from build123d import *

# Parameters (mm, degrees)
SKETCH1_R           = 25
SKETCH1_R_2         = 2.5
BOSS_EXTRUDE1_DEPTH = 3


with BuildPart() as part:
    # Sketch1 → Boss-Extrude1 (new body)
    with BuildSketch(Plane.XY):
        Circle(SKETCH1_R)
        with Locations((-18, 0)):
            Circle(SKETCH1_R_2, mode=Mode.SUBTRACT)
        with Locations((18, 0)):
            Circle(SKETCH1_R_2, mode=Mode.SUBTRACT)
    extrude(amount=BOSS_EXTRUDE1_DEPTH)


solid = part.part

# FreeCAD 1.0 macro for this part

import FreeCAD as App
import Part
import Sketcher

V = App.Vector

doc = App.newDocument("Part")
body = doc.addObject("PartDesign::Body", "Body")

sketch1 = doc.addObject("Sketcher::SketchObject", "Sketch")
body.addObject(sketch1)
sketch1.AttachmentSupport = (doc.XY_Plane, [""])
sketch1.MapMode = "FlatFace"
sketch1.addGeometry(Part.Circle(V(0, 0, 0), V(0, 0, 1), 25), False)
sketch1.addGeometry(Part.Circle(V(-18, 0, 0), V(0, 0, 1), 2.5), False)
sketch1.addGeometry(Part.Circle(V(18, 0, 0), V(0, 0, 1), 2.5), False)
sketch1.addConstraint(Sketcher.Constraint("Coincident", 0, 3, -1, 1))
sketch1.addConstraint(Sketcher.Constraint("Equal", 1, 2))
sketch1.addConstraint(Sketcher.Constraint("Symmetric", 1, 3, 2, 3, -1, 1))
sketch1.addConstraint(Sketcher.Constraint("PointOnObject", 1, 3, -1))
sketch1.addConstraint(Sketcher.Constraint("Diameter", 0, 50.0))
sketch1.addConstraint(Sketcher.Constraint("Diameter", 1, 5.0))
sketch1.addConstraint(Sketcher.Constraint("DistanceX", 1, 3, -1, 1, 18.0))
pad1 = doc.addObject("PartDesign::Pad", "Pad")
body.addObject(pad1)
pad1.Profile = sketch1
pad1.Length = 3

doc.recompute()
